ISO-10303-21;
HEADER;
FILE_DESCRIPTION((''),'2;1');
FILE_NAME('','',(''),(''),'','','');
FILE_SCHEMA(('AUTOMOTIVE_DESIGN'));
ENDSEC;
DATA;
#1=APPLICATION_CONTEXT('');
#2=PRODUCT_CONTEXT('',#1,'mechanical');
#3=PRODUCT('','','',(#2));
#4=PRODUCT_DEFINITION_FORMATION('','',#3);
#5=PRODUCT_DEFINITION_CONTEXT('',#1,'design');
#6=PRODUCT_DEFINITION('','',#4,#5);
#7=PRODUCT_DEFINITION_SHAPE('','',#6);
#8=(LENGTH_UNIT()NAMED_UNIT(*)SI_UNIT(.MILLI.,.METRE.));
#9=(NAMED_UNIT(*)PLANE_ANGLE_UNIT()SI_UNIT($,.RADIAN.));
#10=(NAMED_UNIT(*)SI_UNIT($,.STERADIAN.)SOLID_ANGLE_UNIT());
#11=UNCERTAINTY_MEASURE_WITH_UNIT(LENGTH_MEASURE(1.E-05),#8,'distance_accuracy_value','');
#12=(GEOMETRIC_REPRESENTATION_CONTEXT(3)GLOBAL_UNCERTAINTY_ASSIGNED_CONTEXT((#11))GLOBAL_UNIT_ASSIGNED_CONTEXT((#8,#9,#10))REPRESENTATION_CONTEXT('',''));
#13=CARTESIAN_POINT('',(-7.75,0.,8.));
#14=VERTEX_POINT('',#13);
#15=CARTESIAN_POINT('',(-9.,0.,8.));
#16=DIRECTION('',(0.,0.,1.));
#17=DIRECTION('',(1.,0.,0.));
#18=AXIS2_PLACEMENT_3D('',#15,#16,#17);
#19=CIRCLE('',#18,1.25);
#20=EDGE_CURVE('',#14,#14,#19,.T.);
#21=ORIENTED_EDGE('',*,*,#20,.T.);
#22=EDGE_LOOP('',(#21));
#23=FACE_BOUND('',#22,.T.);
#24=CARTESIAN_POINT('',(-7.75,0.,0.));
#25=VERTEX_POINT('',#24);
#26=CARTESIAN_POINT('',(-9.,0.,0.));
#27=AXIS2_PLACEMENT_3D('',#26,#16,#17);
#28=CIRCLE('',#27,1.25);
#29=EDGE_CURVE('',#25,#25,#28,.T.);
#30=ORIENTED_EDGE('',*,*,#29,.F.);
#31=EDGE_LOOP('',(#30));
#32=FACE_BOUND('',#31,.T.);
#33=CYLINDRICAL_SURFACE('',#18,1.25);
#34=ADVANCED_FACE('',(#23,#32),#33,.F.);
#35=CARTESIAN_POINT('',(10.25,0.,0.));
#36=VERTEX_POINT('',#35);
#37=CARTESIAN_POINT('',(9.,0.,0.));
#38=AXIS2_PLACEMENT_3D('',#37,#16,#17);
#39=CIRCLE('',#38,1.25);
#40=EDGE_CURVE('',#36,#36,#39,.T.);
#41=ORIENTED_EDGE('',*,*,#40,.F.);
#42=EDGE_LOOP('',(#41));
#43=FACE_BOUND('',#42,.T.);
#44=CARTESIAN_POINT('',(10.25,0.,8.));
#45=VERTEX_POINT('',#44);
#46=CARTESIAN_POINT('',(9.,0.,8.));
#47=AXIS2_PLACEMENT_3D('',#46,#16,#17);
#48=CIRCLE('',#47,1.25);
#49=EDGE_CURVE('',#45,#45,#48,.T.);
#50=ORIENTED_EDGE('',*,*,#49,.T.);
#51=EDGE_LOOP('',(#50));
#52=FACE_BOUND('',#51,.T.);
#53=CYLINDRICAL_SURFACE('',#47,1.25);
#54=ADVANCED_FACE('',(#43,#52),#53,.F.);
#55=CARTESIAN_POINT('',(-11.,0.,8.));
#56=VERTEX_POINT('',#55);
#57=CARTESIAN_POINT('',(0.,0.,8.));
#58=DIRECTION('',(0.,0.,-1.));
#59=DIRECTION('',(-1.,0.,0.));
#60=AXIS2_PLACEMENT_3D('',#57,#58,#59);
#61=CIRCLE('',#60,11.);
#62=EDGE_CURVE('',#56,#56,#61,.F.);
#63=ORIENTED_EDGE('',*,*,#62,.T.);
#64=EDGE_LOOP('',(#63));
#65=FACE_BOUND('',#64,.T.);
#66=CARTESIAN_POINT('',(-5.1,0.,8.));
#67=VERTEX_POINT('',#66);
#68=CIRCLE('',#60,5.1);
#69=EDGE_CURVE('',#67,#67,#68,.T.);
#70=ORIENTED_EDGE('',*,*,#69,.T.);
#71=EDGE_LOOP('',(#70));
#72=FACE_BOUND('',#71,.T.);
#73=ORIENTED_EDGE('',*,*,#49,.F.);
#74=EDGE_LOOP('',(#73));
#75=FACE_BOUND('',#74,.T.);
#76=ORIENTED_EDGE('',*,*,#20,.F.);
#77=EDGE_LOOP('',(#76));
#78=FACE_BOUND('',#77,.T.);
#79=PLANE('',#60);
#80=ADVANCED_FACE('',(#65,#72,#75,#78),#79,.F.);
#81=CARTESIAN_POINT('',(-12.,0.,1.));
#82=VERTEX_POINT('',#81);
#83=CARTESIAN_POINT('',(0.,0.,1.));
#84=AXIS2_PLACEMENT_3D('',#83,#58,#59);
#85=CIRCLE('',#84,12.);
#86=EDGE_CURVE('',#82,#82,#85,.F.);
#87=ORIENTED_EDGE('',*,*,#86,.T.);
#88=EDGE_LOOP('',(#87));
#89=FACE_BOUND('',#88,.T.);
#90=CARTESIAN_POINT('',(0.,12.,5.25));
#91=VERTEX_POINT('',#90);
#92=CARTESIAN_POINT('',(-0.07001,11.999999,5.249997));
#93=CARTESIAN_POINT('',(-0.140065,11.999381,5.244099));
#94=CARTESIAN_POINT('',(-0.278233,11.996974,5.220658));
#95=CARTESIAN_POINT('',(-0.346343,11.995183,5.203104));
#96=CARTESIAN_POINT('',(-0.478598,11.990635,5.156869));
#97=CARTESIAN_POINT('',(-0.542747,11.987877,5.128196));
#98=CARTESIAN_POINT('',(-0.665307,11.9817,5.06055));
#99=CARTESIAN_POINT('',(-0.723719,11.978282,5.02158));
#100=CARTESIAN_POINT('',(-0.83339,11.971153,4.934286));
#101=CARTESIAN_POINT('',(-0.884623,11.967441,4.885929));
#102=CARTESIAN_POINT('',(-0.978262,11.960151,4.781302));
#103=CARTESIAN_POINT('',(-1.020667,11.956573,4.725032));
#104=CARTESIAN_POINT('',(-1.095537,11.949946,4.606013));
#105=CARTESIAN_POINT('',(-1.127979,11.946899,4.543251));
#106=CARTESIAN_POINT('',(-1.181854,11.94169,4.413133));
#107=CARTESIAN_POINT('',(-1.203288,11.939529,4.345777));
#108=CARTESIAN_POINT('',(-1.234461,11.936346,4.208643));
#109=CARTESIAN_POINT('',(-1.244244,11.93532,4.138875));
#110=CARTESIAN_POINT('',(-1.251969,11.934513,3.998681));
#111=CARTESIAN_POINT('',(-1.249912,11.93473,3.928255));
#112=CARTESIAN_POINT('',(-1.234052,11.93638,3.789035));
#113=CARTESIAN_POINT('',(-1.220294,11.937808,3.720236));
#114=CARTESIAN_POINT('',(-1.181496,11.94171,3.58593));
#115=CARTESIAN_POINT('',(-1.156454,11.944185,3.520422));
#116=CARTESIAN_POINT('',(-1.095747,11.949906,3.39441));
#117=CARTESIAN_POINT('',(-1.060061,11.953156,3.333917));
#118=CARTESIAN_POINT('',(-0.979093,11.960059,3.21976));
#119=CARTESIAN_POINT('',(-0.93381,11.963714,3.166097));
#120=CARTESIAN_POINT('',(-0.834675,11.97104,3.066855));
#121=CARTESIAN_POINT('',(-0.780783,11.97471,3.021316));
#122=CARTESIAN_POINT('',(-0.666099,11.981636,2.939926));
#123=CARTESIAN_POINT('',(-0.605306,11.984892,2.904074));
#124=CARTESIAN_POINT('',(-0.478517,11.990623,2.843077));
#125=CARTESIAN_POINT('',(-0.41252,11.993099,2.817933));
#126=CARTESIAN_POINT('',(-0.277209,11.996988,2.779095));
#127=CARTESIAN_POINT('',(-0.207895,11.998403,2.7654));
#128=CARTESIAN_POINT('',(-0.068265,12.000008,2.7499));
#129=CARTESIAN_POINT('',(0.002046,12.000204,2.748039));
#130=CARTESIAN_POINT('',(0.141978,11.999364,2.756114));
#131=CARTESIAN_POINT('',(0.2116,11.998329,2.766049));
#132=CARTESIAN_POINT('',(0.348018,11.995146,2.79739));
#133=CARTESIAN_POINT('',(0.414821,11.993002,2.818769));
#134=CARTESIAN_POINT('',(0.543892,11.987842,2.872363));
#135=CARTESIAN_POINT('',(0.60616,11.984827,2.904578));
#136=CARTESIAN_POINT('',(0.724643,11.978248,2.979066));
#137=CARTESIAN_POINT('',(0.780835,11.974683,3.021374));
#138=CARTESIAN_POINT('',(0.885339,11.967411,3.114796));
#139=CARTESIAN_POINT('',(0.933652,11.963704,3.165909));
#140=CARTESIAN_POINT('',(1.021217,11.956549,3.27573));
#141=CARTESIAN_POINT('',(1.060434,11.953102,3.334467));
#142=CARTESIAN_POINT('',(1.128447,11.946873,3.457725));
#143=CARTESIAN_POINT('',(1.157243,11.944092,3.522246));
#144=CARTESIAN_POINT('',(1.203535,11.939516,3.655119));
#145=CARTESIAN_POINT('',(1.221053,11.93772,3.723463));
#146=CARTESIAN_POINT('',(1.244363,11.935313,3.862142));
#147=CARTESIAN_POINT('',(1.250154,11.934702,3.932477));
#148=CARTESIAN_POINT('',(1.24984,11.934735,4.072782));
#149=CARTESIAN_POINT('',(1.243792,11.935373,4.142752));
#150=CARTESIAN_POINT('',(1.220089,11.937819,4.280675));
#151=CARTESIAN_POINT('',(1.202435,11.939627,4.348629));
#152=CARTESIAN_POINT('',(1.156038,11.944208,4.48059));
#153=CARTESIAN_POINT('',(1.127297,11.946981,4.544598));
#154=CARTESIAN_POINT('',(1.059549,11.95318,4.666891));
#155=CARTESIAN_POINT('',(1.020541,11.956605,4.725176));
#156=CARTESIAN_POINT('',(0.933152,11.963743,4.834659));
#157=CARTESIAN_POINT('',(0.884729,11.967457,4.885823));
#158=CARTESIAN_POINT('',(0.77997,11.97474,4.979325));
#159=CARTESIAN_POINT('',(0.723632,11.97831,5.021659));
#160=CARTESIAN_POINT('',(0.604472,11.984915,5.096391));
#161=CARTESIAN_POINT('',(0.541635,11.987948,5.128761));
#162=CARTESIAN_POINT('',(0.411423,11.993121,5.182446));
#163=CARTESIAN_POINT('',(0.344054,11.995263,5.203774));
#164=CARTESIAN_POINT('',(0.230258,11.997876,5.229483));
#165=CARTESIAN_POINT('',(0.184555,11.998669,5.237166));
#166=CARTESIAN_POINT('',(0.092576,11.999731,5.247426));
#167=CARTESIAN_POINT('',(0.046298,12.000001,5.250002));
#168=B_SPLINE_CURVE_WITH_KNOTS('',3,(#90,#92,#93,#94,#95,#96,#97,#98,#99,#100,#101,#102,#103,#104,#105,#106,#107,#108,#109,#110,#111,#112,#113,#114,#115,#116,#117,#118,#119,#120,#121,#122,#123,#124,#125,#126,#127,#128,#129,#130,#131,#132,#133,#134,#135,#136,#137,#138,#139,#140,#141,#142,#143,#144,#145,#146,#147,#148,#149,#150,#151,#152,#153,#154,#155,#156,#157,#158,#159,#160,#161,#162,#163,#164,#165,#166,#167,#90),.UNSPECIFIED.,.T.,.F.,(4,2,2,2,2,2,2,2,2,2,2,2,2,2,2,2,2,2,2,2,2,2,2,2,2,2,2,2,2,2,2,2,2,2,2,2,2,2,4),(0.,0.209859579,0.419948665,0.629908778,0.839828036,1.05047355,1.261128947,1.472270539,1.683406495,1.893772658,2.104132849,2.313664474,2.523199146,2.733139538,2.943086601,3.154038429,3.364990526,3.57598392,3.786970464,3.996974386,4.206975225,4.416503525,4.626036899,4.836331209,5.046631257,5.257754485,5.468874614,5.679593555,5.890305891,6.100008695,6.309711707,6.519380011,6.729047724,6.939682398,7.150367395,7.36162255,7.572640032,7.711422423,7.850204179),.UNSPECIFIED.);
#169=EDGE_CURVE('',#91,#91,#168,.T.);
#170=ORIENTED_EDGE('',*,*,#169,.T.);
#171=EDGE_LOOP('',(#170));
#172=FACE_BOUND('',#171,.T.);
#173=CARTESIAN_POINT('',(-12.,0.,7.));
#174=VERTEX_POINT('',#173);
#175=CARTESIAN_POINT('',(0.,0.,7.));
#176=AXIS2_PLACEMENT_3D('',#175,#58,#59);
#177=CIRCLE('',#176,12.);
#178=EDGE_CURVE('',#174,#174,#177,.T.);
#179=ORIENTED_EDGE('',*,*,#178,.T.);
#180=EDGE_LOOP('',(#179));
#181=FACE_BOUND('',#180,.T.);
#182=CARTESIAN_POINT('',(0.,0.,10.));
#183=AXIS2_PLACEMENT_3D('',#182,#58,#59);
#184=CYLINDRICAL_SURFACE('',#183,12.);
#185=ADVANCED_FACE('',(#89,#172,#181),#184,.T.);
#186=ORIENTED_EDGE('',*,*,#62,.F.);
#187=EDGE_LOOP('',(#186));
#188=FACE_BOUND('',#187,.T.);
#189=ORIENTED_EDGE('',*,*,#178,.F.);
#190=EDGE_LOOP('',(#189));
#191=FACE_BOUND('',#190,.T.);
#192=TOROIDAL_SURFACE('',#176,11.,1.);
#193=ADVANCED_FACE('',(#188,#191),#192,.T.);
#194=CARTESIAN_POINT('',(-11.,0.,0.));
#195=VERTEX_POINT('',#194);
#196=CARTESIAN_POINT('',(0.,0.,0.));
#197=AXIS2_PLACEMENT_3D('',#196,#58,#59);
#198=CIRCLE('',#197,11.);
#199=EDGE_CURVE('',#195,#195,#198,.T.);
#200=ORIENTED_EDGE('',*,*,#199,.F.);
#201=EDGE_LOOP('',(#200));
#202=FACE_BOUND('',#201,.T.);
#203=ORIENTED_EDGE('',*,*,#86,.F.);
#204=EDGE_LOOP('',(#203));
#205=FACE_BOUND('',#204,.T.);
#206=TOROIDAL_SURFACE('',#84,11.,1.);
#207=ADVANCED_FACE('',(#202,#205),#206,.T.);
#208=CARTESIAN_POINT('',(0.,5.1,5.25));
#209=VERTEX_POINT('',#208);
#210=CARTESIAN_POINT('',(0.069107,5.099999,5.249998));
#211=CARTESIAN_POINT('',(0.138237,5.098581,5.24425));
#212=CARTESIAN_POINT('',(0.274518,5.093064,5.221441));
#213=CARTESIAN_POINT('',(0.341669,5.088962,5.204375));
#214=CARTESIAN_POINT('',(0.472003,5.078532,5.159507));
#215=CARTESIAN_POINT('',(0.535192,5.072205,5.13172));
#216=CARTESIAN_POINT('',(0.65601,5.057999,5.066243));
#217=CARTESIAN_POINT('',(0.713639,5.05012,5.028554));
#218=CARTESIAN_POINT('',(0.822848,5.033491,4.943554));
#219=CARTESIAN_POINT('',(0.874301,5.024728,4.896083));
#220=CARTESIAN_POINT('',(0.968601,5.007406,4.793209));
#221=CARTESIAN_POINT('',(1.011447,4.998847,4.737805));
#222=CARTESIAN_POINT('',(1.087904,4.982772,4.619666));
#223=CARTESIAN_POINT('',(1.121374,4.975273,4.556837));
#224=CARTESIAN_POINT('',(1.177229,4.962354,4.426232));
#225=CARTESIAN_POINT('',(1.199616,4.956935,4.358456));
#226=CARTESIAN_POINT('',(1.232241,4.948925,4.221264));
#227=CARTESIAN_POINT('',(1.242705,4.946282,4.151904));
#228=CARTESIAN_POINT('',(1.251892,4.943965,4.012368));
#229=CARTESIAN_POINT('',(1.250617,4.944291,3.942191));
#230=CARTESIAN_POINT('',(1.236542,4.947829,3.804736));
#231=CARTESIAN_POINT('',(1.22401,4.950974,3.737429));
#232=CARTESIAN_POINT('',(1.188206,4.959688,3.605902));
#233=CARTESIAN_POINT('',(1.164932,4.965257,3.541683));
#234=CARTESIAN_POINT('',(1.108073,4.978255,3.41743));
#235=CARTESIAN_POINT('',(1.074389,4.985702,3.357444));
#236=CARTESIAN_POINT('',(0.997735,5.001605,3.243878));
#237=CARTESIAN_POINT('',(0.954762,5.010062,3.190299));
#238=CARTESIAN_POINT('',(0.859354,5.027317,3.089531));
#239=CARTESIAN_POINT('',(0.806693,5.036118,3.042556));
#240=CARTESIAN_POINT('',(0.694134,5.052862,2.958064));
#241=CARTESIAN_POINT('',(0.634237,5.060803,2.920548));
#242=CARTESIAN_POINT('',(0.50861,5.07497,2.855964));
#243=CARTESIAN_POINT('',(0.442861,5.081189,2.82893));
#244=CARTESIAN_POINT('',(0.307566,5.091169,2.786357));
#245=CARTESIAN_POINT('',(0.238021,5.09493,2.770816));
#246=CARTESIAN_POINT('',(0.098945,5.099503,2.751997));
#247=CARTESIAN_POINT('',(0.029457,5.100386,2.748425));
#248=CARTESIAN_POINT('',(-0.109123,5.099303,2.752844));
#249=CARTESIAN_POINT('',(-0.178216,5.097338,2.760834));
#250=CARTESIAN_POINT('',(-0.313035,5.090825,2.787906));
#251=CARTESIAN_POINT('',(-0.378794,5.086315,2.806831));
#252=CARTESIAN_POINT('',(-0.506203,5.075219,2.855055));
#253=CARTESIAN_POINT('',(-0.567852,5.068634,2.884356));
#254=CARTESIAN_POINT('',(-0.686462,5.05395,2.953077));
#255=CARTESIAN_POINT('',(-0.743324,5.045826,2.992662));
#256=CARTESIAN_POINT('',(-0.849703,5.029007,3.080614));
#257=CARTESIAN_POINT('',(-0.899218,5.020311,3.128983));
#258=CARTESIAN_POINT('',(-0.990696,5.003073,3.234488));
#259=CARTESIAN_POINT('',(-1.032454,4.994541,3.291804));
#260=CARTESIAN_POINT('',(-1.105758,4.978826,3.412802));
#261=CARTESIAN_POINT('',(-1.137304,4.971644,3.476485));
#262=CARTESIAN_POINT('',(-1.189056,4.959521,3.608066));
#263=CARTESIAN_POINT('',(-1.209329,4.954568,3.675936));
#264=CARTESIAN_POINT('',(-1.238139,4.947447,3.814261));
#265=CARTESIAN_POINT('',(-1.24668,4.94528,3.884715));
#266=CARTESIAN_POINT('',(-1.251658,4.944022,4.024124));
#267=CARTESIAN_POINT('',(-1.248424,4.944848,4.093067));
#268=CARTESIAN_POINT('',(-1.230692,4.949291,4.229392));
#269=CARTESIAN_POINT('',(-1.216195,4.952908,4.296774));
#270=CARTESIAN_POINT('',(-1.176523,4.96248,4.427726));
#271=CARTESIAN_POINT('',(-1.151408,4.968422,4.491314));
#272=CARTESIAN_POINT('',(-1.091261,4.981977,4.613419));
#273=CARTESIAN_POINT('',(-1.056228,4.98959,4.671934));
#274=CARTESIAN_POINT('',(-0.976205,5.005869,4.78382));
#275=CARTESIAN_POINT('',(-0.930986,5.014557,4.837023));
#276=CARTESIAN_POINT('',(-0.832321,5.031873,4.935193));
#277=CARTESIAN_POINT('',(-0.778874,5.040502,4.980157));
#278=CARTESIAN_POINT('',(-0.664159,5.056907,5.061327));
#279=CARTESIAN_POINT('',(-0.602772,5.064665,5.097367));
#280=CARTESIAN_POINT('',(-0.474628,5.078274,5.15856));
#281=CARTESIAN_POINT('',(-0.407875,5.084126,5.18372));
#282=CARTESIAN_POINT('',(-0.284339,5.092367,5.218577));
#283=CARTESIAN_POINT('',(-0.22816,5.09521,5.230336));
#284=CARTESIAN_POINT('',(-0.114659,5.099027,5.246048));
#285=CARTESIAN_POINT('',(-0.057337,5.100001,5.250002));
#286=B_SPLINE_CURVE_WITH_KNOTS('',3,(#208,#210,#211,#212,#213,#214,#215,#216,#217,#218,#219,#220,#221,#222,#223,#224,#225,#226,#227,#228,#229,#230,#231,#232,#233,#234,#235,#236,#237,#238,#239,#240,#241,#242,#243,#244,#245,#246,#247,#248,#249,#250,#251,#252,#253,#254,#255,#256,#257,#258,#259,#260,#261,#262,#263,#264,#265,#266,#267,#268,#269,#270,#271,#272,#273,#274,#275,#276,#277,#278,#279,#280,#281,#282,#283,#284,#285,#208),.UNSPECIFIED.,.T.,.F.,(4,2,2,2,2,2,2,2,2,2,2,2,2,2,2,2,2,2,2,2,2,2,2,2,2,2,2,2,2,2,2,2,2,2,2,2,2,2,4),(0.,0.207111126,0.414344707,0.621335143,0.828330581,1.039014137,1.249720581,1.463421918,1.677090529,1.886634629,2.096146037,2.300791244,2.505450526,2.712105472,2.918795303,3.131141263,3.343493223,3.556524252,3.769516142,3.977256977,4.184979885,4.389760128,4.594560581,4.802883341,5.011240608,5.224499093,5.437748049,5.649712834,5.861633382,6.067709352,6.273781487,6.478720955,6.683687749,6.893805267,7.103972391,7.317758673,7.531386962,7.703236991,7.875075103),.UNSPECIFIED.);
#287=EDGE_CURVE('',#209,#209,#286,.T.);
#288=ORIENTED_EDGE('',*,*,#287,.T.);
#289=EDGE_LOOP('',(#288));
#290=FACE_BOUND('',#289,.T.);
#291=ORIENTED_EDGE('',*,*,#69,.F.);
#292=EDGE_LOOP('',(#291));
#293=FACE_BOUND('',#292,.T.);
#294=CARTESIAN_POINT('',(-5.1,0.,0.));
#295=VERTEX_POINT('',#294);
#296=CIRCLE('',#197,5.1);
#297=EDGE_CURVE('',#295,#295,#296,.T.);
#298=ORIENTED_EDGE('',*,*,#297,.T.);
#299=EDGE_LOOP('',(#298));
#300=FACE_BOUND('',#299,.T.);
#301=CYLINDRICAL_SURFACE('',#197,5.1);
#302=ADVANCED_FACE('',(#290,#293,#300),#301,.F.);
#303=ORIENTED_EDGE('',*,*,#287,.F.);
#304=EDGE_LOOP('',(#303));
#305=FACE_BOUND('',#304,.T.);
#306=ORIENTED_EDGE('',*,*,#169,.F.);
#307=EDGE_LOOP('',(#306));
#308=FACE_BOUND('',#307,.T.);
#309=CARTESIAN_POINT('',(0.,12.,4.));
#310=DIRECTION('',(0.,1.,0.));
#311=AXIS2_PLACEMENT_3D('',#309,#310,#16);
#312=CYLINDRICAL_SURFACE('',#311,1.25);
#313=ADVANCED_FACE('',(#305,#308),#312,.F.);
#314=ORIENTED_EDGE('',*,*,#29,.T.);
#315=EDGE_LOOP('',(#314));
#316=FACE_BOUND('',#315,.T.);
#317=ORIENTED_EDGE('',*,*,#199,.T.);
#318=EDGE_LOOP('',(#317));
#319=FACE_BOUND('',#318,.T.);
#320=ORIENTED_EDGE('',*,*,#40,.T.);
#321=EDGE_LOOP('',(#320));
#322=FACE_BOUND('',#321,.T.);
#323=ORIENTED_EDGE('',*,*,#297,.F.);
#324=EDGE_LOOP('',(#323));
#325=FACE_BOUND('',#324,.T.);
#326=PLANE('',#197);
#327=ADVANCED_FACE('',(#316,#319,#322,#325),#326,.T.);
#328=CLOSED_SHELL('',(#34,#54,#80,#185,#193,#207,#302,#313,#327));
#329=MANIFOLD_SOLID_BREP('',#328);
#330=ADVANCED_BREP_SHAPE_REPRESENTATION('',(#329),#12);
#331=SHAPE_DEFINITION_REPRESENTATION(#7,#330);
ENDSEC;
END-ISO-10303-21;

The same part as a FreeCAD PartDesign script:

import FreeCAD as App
import Part
import Sketcher


def edges_at(feature, points):
    """Names of the edges that pass closest to the given points."""
    edges = feature.Shape.Edges
    near = lambda p: min(range(len(edges)), key=lambda i: edges[i].distToShape(Part.Vertex(*p))[0])
    return sorted({f"Edge{near(p) + 1}" for p in points})


def add_polygon(sketch, points):
    """Adds a closed chain of lines whose ends are joined by coincident constraints."""
    first, n = sketch.GeometryCount, len(points)
    for a, b in zip(points, points[1:] + points[:1]):
        sketch.addGeometry(Part.LineSegment(App.Vector(*a, 0), App.Vector(*b, 0)), False)
    for i in range(n):
        sketch.addConstraint(Sketcher.Constraint("Coincident", first + i, 2, first + (i + 1) % n, 1))

doc = App.newDocument("Part")
params = doc.addObject("Spreadsheet::Sheet", "Params")
for row, (alias, value) in enumerate([
    ("sketch1_width", "24 mm"),
    ("pad1_length", "8 mm"),
    ("sketch2_diameter", "2.5 mm"),
    ("hole_diameter", "2.5 mm"),
    ("sketch3_diameter", "10.2 mm"),
    ("hole2_diameter", "10.2 mm"),
    ("sketch4_diameter", "2.5 mm"),
    ("sketch5_diameter", "37 mm"),
    ("sketch5_diameter2", "24 mm"),
    ("pocket2_length", "10 mm"),
    ("fillet_radius", "1 mm"),
], start=1):
    params.set(f"A{row}", alias)
    params.set(f"B{row}", "=" + value)
    params.setAlias(f"B{row}", alias)

body = doc.addObject("PartDesign::Body", "Body")

# Sketch on XY plane
sketch1 = body.newObject("Sketcher::SketchObject", "Sketch")
sketch1.AttachmentSupport = (doc.getObject("XY_Plane"), [""])
sketch1.MapMode = "FlatFace"
add_polygon(sketch1, [(-12, 12), (-12, -12), (12, -12), (12, 12)])  # lines 0-3
sketch1.addConstraint(Sketcher.Constraint("Vertical", 0))
sketch1.addConstraint(Sketcher.Constraint("Horizontal", 1))
sketch1.addConstraint(Sketcher.Constraint("Vertical", 2))
sketch1.addConstraint(Sketcher.Constraint("Horizontal", 3))
sketch1.addConstraint(Sketcher.Constraint("Symmetric", 0, 2, 2, 2, -1, 1))
sketch1.addConstraint(Sketcher.Constraint("Equal", 3, 0))
sketch1.addConstraint(Sketcher.Constraint("DistanceX", 1, 1, 1, 2, 24.0))
sketch1.setExpression("Constraints[10]", "Params.sketch1_width")
pad1 = body.newObject("PartDesign::Pad", "Pad")
pad1.Profile = sketch1
pad1.setExpression("Length", "Params.pad1_length")

# Sketch on XY plane
sketch2 = body.newObject("Sketcher::SketchObject", "Sketch001")
sketch2.AttachmentSupport = (doc.getObject("XY_Plane"), [""])
sketch2.MapMode = "FlatFace"
sketch2.AttachmentOffset = App.Placement(App.Vector(0, 0, 8), App.Rotation())
sketch2.addGeometry(Part.Circle(App.Vector(9, 0, 0), App.Vector(0, 0, 1), 1.25), False)
sketch2.addGeometry(Part.Circle(App.Vector(-9, 0, 0), App.Vector(0, 0, 1), 1.25), False)
sketch2.addConstraint(Sketcher.Constraint("Equal", 0, 1))
sketch2.addConstraint(Sketcher.Constraint("Symmetric", 0, 3, 1, 3, -1, 1))
sketch2.addConstraint(Sketcher.Constraint("PointOnObject", 0, 3, -1))
sketch2.addConstraint(Sketcher.Constraint("Diameter", 0, 2.5))
sketch2.addConstraint(Sketcher.Constraint("DistanceX", -1, 1, 0, 3, 9.0))
sketch2.setExpression("Constraints[3]", "Params.sketch2_diameter")
doc.recompute()
hole = body.newObject("PartDesign::Hole", "Hole")
hole.Profile = sketch2
hole.ThreadType = "None"
hole.setExpression("Diameter", "Params.hole_diameter")
hole.DepthType = "ThroughAll"

# Sketch on XY plane
sketch3 = body.newObject("Sketcher::SketchObject", "Sketch002")
sketch3.AttachmentSupport = (doc.getObject("XY_Plane"), [""])
sketch3.MapMode = "FlatFace"
sketch3.addGeometry(Part.Circle(App.Vector(0, 0, 0), App.Vector(0, 0, 1), 5.1), False)
sketch3.addConstraint(Sketcher.Constraint("Coincident", 0, 3, -1, 1))
sketch3.addConstraint(Sketcher.Constraint("Diameter", 0, 10.2))
sketch3.setExpression("Constraints[1]", "Params.sketch3_diameter")
doc.recompute()
hole2 = body.newObject("PartDesign::Hole", "Hole001")
hole2.Profile = sketch3
hole2.ThreadType = "None"
hole2.setExpression("Diameter", "Params.hole2_diameter")
hole2.DepthType = "ThroughAll"
hole2.Reversed = True

# Sketch on XZ plane
sketch4 = body.newObject("Sketcher::SketchObject", "Sketch003")
sketch4.AttachmentSupport = (doc.getObject("XZ_Plane"), [""])
sketch4.MapMode = "FlatFace"
sketch4.AttachmentOffset = App.Placement(App.Vector(0, 0, -12), App.Rotation())
sketch4.addGeometry(Part.Circle(App.Vector(0, 4, 0), App.Vector(0, 0, 1), 1.25), False)
sketch4.addConstraint(Sketcher.Constraint("PointOnObject", 0, 3, -2))
sketch4.addConstraint(Sketcher.Constraint("Diameter", 0, 2.5))
sketch4.addConstraint(Sketcher.Constraint("DistanceY", -1, 1, 0, 3, 4.0))
sketch4.setExpression("Constraints[1]", "Params.sketch4_diameter")
pocket1 = body.newObject("PartDesign::Pocket", "Pocket")
pocket1.Profile = sketch4
pocket1.Type = "UpToFirst"
pocket1.Reversed = True

# Sketch on XY plane
sketch5 = body.newObject("Sketcher::SketchObject", "Sketch004")
sketch5.AttachmentSupport = (doc.getObject("XY_Plane"), [""])
sketch5.MapMode = "FlatFace"
sketch5.addGeometry(Part.Circle(App.Vector(0, 0, 0), App.Vector(0, 0, 1), 18.5), False)
sketch5.addGeometry(Part.Circle(App.Vector(0, 0, 0), App.Vector(0, 0, 1), 12), False)
sketch5.addConstraint(Sketcher.Constraint("Coincident", 0, 3, -1, 1))
sketch5.addConstraint(Sketcher.Constraint("Coincident", 1, 3, -1, 1))
sketch5.addConstraint(Sketcher.Constraint("Diameter", 0, 37.0))
sketch5.addConstraint(Sketcher.Constraint("Diameter", 1, 24.0))
sketch5.setExpression("Constraints[2]", "Params.sketch5_diameter")
sketch5.setExpression("Constraints[3]", "Params.sketch5_diameter2")
pocket2 = body.newObject("PartDesign::Pocket", "Pocket001")
pocket2.Profile = sketch5
pocket2.setExpression("Length", "Params.pocket2_length")
pocket2.Reversed = True
doc.recompute()

fillet = body.newObject("PartDesign::Fillet", "Fillet")
fillet.Base = (pocket2, edges_at(pocket2, [(12, 0, 0), (12, 0, 8)]))
fillet.setExpression("Radius", "Params.fillet_radius")

doc.recompute()
